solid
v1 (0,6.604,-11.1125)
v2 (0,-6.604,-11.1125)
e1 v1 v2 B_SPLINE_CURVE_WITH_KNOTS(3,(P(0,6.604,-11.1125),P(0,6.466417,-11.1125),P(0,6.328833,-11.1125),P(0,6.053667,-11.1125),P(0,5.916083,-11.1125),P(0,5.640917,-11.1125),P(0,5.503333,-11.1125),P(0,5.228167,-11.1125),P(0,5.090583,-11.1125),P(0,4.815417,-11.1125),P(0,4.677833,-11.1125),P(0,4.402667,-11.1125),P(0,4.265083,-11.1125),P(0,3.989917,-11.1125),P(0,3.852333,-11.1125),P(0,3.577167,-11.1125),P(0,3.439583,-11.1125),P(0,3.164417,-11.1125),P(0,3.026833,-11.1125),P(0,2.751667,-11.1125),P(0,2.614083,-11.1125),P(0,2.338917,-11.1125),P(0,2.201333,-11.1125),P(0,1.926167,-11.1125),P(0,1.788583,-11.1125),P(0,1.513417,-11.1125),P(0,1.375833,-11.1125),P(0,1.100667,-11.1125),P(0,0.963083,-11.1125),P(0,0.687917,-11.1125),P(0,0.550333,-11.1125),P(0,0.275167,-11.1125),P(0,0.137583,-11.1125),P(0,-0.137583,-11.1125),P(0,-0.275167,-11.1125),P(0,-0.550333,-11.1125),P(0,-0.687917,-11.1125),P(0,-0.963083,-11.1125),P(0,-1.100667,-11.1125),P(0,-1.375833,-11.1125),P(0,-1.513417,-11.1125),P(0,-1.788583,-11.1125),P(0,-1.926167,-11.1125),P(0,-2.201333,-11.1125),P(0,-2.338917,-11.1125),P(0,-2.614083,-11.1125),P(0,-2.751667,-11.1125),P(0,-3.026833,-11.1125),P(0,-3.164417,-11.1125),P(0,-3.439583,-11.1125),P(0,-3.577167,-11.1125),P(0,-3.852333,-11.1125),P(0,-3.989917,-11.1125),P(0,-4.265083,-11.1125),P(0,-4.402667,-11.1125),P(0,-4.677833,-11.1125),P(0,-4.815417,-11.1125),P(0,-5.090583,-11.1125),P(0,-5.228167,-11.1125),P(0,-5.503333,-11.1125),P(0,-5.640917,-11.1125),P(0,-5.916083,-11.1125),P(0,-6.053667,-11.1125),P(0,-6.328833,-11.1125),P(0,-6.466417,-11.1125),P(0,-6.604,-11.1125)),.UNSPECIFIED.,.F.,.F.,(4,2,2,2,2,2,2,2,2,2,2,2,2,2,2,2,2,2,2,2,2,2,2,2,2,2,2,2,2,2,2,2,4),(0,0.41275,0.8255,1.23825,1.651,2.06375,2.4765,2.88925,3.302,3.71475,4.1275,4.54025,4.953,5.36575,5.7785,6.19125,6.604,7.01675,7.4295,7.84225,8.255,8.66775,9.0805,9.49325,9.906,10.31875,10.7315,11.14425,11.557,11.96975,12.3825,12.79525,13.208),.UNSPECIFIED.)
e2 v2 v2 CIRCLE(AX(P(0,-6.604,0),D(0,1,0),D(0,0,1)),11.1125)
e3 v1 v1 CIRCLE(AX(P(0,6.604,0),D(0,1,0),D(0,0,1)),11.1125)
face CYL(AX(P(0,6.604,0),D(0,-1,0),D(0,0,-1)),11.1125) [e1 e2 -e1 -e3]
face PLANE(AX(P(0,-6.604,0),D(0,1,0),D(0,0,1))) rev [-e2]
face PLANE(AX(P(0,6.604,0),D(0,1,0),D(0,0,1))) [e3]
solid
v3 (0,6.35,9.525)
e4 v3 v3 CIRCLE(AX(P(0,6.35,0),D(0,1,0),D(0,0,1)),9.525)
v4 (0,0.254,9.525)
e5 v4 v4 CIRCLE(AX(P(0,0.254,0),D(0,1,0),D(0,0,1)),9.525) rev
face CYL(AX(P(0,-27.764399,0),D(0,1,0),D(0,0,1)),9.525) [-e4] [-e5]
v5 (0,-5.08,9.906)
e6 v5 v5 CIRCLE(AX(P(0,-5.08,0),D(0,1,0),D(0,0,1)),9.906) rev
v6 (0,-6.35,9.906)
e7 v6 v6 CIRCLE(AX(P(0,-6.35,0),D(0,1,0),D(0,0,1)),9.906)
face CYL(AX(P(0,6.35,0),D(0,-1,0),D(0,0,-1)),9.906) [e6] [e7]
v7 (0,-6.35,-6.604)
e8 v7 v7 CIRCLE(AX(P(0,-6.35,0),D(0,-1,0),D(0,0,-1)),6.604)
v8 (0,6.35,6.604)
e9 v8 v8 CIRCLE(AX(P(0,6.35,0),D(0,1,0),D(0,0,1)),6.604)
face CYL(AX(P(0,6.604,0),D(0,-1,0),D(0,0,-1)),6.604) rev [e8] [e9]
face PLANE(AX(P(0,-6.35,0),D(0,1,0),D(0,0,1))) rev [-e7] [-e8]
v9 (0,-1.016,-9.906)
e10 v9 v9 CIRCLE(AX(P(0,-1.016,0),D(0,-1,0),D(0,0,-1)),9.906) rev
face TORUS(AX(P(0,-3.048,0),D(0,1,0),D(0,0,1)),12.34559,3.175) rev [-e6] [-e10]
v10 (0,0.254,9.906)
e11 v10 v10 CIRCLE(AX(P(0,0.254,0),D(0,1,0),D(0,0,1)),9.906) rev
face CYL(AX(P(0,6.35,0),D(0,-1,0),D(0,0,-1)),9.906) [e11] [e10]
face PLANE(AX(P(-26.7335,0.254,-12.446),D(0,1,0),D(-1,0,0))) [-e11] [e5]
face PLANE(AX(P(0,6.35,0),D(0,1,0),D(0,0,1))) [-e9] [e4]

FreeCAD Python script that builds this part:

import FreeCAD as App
import Part
import Sketcher

V = App.Vector
Q = App.Units.Quantity

doc = App.newDocument("Part")
body = doc.addObject("PartDesign::Body", "Body")

# Sketch on XZ plane
sketch1 = body.newObject("Sketcher::SketchObject", "Sketch")
sketch1.AttachmentSupport = (doc.getObject("XZ_Plane"), [""])
sketch1.MapMode = "FlatFace"
sketch1.addGeometry(Part.Circle(V(0, 0, 0), V(0, 0, 1), 11), False)
sketch1.addConstraint([
    Sketcher.Constraint("Coincident", 0, 3, -1, 1),
    Sketcher.Constraint("Diameter", 0, Q("0.875 in")),
])
pad1 = body.newObject("PartDesign::Pad", "Pad")
pad1.Profile = sketch1
pad1.Length = Q("0.52 in")
pad1.Midplane = True
body2 = doc.addObject("PartDesign::Body", "Body001")

# Sketch on XZ plane
sketch2 = body2.newObject("Sketcher::SketchObject", "Sketch001")
sketch2.AttachmentSupport = (doc.getObject("XZ_Plane001"), [""])
sketch2.MapMode = "FlatFace"
sketch2.addGeometry(Part.Circle(V(0, 0, 0), V(0, 0, 1), 10), False)
sketch2.addConstraint([
    Sketcher.Constraint("Coincident", 0, 3, -1, 1),
    Sketcher.Constraint("Diameter", 0, Q("0.78 in")),
])
pad2 = body2.newObject("PartDesign::Pad", "Pad001")
pad2.Profile = sketch2
pad2.Length = Q("0.5 in")
pad2.Midplane = True

# Sketch on XZ plane
sketch3 = body2.newObject("Sketcher::SketchObject", "Sketch002")
sketch3.AttachmentSupport = (doc.getObject("XZ_Plane001"), [""])
sketch3.MapMode = "FlatFace"
sketch3.AttachmentOffset = App.Placement(V(0, 0, -0.25 * 25.4), App.Rotation())
sketch3.addGeometry([
    Part.Circle(V(0, 0, 0), V(0, 0, 1), 10),
    Part.Circle(V(0, 0, 0), V(0, 0, 1), 10),
], False)
sketch3.addConstraint([
    Sketcher.Constraint("Coincident", 0, 3, -1, 1),
    Sketcher.Constraint("Coincident", 1, 3, -1, 1),
    Sketcher.Constraint("Diameter", 0, Q("0.78 in")),
    Sketcher.Constraint("Diameter", 1, Q("0.75 in")),
])
pocket1 = body2.newObject("PartDesign::Pocket", "Pocket")
pocket1.Profile = sketch3
pocket1.Length = Q("0.24 in")
pocket1.Reversed = True

# Sketch on XY plane
sketch4 = body2.newObject("Sketcher::SketchObject", "Sketch003")
sketch4.AttachmentSupport = (doc.getObject("XY_Plane001"), [""])
sketch4.MapMode = "FlatFace"
sketch4.addGeometry(Part.Circle(V(-12.3, -3, 0), V(0, 0, 1), 3.2), False)
sketch4.addConstraint([
    Sketcher.Constraint("Diameter", 0, Q("0.25 in")),
    Sketcher.Constraint("DistanceY", 0, 3, -1, 1, Q("0.12 in")),
    Sketcher.Constraint("DistanceX", 0, 3, -1, 1, Q("12.34559 mm")),
])
groove = body2.newObject("PartDesign::Groove", "Groove")
groove.Profile = sketch4
groove.ReferenceAxis = (sketch4, ["V_Axis"])
groove.Angle = 360

# Sketch on XZ plane
sketch5 = body2.newObject("Sketcher::SketchObject", "Sketch004")
sketch5.AttachmentSupport = (doc.getObject("XZ_Plane001"), [""])
sketch5.MapMode = "FlatFace"
sketch5.AttachmentOffset = App.Placement(V(0, 0, 0.25 * 25.4), App.Rotation())
sketch5.addGeometry(Part.Circle(V(0, 0, 0), V(0, 0, 1), 7), False)
sketch5.addConstraint([
    Sketcher.Constraint("Coincident", 0, 3, -1, 1),
    Sketcher.Constraint("Diameter", 0, Q("0.52 in")),
])
pocket2 = body2.newObject("PartDesign::Pocket", "Pocket001")
pocket2.Profile = sketch5
pocket2.Type = "ThroughAll"

doc.recompute()
